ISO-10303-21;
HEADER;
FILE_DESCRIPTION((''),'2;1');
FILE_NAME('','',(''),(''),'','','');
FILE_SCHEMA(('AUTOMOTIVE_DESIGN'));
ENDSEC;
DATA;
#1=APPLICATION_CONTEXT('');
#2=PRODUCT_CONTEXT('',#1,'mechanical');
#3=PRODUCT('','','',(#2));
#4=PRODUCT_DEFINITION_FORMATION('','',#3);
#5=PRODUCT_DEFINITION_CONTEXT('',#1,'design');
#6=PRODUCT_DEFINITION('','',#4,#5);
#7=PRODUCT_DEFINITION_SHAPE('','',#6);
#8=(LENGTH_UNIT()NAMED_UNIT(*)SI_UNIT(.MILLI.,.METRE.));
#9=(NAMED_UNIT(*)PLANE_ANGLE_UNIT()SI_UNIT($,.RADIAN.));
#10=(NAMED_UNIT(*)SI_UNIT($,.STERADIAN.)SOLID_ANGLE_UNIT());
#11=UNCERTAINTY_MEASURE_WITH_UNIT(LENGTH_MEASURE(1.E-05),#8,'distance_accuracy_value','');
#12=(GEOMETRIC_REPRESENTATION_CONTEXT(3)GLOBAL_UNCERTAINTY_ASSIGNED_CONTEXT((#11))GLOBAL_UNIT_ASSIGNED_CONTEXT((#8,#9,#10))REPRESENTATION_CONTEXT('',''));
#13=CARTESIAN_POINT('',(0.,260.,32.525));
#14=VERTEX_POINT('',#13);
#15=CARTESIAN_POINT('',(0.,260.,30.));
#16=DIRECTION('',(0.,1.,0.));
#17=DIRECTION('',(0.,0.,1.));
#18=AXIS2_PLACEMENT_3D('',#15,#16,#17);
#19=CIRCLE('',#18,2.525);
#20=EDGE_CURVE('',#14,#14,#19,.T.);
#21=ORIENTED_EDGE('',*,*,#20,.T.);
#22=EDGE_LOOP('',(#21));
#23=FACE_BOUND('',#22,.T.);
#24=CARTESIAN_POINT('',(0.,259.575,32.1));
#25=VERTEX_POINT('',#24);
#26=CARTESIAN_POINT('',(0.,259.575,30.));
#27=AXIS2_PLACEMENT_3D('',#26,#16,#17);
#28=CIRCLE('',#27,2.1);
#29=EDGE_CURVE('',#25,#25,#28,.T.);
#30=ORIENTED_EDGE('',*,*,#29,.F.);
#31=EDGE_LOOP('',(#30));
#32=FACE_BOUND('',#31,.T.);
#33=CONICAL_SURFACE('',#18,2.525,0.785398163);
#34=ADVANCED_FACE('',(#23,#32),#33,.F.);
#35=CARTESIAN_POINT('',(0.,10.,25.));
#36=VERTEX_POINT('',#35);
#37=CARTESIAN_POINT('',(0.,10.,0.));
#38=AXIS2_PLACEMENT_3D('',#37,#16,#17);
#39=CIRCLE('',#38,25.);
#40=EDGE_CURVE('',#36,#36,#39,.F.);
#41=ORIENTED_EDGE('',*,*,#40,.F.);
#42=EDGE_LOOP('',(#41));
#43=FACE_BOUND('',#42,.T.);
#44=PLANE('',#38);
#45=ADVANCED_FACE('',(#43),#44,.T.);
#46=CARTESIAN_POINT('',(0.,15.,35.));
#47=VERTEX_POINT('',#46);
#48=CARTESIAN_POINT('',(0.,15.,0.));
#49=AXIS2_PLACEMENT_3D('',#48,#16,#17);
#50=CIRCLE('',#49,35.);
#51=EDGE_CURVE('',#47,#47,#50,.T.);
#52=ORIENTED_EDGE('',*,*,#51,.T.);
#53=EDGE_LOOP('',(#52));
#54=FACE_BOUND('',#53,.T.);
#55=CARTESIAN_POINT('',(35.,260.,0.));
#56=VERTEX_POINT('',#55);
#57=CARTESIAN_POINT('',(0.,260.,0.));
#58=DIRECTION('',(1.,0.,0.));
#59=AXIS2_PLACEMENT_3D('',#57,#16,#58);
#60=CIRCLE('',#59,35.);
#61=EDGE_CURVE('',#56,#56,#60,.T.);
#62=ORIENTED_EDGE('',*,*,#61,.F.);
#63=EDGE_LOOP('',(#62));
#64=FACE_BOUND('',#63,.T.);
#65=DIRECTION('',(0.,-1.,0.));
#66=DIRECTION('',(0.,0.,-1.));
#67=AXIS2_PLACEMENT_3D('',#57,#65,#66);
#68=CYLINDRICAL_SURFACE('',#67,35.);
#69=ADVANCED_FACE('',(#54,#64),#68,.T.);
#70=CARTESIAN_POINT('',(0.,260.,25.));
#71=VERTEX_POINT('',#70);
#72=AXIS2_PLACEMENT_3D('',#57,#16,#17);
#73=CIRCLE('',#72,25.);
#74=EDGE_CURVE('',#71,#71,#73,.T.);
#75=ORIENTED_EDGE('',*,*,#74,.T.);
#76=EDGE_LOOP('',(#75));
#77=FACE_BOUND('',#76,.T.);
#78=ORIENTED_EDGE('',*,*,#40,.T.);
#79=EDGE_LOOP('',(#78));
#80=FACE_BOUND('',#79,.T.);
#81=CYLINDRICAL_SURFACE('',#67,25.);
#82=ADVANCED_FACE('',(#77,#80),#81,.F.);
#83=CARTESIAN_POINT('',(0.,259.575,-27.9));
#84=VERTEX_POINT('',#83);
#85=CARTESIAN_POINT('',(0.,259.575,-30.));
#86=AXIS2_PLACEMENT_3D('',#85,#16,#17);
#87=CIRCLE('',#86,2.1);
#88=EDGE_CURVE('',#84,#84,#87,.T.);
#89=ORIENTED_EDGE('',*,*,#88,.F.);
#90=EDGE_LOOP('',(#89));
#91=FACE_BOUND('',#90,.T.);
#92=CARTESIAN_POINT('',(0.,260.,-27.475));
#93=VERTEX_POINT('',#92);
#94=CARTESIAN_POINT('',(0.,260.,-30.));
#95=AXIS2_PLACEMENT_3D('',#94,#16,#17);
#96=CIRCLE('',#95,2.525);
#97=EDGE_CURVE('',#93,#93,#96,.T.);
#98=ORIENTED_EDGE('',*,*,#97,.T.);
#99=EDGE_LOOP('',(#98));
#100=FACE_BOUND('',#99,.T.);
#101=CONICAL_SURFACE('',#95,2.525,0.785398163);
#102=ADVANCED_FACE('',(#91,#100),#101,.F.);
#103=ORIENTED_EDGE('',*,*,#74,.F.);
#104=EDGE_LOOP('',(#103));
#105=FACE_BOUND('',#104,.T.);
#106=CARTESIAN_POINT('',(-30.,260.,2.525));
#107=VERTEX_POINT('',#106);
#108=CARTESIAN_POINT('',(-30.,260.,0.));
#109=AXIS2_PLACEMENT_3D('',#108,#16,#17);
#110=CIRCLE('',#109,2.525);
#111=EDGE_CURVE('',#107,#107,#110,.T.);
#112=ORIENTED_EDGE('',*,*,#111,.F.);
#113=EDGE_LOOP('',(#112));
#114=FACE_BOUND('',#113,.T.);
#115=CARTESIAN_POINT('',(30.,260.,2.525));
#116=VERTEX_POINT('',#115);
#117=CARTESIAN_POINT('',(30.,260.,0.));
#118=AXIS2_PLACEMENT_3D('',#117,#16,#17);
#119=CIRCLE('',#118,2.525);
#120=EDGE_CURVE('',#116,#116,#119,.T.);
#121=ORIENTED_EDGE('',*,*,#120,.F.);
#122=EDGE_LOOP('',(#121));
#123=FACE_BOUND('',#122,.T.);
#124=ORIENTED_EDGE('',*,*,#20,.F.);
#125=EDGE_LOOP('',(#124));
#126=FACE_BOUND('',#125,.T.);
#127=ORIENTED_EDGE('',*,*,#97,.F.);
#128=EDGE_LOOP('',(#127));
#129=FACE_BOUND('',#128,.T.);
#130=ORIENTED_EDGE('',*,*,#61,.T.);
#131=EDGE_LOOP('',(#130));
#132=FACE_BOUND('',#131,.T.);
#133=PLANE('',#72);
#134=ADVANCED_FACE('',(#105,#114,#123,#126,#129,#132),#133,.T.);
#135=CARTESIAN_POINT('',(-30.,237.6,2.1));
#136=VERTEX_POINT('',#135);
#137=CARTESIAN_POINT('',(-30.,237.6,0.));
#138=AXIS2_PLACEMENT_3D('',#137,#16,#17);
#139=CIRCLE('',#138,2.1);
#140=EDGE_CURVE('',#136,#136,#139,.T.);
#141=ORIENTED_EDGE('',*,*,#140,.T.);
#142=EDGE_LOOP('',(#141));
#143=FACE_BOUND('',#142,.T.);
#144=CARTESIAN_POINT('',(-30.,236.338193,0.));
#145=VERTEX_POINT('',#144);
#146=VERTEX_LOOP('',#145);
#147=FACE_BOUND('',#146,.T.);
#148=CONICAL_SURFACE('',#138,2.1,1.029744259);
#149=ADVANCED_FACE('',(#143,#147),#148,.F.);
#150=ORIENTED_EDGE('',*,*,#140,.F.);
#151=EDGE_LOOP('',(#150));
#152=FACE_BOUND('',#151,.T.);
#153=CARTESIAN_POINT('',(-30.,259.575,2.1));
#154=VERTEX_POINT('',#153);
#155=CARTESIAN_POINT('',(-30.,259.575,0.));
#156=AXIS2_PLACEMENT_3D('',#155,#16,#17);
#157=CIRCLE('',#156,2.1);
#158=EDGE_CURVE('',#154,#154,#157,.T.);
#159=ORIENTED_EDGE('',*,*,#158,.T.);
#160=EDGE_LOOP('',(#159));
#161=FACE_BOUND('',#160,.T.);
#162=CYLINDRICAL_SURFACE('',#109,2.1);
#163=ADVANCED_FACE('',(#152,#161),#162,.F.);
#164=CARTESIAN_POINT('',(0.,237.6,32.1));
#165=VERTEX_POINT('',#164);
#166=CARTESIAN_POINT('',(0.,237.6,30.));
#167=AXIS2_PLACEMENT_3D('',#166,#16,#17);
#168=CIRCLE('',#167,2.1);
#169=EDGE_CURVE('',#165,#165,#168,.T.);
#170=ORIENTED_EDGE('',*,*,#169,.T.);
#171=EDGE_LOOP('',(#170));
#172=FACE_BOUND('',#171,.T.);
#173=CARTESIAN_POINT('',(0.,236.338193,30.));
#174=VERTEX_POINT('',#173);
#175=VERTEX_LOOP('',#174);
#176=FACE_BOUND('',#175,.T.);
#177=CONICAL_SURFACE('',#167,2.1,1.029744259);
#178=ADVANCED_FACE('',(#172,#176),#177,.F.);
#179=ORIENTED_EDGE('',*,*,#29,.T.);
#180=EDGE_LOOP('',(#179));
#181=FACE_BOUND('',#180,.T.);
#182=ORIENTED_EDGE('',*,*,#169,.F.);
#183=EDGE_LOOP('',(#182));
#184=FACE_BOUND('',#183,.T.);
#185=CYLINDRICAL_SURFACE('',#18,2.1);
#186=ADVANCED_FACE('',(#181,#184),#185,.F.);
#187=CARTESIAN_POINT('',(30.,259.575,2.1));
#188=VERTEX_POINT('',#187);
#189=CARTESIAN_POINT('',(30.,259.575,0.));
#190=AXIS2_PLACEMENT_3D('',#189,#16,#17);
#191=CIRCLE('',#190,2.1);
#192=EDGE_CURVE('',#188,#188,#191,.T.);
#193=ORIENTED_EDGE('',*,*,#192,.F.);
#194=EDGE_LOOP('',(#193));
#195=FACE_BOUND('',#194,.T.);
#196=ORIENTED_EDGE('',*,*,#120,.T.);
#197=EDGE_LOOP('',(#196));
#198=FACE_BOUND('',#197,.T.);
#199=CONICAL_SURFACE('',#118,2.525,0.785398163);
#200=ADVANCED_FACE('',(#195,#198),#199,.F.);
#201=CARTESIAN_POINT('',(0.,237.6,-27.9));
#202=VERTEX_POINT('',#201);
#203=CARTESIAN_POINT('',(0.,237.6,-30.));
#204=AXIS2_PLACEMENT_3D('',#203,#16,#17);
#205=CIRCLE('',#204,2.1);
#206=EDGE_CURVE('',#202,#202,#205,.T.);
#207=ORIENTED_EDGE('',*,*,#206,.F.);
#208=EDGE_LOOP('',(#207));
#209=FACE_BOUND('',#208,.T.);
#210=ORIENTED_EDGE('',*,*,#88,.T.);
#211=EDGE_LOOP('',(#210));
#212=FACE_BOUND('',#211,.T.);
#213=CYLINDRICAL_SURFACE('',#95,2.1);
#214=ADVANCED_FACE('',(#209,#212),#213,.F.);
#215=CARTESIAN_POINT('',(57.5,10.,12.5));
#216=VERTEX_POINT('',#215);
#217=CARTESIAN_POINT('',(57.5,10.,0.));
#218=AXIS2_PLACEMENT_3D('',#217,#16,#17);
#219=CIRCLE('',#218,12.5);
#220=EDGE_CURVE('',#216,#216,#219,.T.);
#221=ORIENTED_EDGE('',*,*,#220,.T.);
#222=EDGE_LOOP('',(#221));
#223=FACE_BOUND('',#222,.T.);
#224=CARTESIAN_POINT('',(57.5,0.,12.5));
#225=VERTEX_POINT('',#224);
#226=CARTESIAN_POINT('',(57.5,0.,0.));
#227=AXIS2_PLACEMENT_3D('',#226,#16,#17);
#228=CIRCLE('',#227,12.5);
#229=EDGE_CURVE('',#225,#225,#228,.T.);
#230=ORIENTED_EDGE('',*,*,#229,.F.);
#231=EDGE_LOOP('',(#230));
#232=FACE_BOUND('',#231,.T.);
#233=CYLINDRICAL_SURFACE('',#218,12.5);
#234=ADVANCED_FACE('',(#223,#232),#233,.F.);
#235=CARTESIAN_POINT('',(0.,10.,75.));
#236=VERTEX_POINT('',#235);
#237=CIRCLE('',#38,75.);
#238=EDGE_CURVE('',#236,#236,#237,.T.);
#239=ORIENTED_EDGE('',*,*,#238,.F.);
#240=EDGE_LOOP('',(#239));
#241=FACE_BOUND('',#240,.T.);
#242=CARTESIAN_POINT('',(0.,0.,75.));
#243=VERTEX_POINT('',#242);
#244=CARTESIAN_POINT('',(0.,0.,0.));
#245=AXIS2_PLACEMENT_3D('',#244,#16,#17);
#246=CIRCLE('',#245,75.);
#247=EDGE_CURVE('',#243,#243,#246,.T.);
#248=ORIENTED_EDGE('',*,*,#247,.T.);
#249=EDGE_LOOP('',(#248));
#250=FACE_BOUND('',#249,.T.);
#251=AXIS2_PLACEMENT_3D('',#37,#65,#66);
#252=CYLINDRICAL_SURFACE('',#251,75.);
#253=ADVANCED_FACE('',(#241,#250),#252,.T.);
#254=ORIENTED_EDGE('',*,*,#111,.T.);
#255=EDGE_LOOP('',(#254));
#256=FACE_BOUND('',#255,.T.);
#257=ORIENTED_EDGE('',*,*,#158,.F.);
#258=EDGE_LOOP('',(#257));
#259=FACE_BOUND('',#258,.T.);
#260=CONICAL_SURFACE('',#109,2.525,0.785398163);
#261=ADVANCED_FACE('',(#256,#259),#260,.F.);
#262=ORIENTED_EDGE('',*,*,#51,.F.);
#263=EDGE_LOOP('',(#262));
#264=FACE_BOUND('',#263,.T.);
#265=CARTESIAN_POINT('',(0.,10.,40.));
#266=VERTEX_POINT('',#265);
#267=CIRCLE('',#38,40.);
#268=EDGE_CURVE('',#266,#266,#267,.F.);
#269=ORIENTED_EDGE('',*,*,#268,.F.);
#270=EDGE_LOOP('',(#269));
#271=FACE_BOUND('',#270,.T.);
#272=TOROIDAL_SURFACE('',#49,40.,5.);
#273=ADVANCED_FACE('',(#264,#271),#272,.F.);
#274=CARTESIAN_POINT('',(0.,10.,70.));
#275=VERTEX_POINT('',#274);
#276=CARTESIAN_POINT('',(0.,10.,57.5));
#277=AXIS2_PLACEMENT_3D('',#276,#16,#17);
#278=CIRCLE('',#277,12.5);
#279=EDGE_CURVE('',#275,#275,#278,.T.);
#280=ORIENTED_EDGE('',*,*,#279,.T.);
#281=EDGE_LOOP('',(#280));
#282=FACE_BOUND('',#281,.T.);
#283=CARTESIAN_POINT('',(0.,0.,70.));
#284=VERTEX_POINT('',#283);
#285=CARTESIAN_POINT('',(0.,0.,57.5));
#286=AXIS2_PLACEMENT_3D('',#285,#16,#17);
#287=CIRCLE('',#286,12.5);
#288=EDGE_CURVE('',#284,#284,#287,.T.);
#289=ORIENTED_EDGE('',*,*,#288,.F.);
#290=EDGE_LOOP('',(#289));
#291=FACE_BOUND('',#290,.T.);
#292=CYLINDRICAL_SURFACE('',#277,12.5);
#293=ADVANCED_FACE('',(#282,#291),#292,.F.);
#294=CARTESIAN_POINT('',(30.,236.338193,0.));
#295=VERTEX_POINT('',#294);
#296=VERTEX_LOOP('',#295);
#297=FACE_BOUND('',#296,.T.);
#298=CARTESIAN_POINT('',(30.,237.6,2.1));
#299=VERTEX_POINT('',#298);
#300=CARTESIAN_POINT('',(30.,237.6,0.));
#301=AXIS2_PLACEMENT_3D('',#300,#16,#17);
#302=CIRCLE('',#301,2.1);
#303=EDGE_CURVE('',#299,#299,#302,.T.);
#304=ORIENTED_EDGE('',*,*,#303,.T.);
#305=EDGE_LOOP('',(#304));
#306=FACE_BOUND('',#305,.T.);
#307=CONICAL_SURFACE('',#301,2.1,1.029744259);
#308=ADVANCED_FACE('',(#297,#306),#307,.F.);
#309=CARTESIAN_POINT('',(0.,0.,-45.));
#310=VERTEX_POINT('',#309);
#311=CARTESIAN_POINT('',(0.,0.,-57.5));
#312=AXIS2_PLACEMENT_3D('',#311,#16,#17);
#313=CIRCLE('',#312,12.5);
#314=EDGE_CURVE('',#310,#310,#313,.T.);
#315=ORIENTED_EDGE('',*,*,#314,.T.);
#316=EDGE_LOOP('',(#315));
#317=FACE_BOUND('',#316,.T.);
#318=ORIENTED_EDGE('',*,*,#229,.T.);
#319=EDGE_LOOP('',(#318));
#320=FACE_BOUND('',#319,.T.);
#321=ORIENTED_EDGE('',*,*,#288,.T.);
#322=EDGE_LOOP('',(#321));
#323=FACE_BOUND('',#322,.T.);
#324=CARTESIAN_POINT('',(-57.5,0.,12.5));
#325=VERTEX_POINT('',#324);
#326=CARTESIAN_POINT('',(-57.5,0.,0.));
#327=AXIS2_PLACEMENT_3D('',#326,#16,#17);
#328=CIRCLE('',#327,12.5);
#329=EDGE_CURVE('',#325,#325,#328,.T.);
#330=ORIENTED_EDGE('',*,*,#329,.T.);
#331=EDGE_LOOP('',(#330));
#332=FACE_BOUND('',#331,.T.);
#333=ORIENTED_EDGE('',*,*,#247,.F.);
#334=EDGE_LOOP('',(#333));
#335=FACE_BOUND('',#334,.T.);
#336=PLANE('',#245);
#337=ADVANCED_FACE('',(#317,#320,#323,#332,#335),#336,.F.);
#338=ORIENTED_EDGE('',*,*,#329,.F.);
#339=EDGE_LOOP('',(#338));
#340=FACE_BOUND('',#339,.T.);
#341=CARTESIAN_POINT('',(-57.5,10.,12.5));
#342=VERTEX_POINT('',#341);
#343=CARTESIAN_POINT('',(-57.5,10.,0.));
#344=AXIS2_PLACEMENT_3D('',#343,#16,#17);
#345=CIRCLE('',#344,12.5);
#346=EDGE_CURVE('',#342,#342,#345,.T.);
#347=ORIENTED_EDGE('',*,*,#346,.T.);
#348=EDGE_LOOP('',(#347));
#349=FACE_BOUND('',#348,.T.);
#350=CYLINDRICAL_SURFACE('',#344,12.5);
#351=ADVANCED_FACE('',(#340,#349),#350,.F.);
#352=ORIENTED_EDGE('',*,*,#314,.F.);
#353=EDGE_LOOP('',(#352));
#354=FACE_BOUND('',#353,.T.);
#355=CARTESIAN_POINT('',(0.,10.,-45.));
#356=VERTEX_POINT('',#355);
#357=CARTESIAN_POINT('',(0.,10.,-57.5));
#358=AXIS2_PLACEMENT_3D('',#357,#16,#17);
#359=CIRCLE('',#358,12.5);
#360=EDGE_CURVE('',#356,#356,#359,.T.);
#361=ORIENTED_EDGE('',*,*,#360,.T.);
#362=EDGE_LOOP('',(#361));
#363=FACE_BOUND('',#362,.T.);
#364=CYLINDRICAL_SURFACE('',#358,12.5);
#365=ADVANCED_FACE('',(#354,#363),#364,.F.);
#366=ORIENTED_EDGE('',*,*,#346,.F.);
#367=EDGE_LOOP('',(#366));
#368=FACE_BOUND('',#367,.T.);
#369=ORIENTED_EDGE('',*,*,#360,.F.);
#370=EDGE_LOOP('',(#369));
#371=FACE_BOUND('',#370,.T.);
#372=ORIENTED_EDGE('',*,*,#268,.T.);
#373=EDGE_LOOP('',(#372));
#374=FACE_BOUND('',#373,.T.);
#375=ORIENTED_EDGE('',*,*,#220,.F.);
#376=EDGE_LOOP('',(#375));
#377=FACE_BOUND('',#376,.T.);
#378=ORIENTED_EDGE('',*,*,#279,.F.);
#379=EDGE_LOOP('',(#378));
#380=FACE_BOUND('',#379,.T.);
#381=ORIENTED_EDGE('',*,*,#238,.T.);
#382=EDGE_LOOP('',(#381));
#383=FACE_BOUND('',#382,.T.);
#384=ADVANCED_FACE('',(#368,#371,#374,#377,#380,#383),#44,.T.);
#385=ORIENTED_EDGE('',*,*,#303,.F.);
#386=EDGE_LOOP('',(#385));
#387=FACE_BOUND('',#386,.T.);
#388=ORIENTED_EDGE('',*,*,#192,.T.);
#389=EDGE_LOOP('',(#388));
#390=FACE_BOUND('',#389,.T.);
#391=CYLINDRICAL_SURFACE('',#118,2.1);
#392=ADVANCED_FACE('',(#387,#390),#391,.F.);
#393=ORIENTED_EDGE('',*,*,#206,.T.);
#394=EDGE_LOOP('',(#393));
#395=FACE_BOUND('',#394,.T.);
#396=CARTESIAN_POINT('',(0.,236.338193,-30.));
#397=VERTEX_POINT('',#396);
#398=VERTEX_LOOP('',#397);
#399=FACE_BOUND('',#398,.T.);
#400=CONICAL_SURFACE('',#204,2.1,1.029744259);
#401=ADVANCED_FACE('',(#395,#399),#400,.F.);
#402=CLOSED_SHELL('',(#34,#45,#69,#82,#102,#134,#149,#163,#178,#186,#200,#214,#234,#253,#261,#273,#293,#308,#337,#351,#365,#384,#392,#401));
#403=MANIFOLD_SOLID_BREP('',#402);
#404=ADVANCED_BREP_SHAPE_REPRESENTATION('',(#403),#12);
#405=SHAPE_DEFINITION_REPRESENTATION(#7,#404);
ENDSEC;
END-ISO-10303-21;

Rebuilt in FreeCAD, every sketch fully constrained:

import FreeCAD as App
import Part
import Sketcher


def edges_at(feature, points):
    """Names of the edges that pass closest to the given points."""
    edges = feature.Shape.Edges
    near = lambda p: min(range(len(edges)), key=lambda i: edges[i].distToShape(Part.Vertex(*p))[0])
    return sorted({f"Edge{near(p) + 1}" for p in points})

doc = App.newDocument("Part")
body = doc.addObject("PartDesign::Body", "Body")

sketch1 = body.newObject("Sketcher::SketchObject", "Sketch")
sketch1.AttachmentSupport = (doc.getObject("XZ_Plane"), [""])
sketch1.MapMode = "FlatFace"
sketch1.addGeometry(Part.Circle(App.Vector(0, 0, 0), App.Vector(0, 0, 1), 75), False)
sketch1.addConstraint([
    Sketcher.Constraint("Coincident", 0, 3, -1, 1),
    Sketcher.Constraint("Diameter", 0, 150.0),
])
pad1 = body.newObject("PartDesign::Pad", "Pad")
pad1.Profile = sketch1
pad1.Length = 10
pad1.Reversed = True

sketch2 = body.newObject("Sketcher::SketchObject", "Sketch001")
sketch2.AttachmentSupport = (doc.getObject("XZ_Plane"), [""])
sketch2.MapMode = "FlatFace"
sketch2.AttachmentOffset = App.Placement(App.Vector(0, 0, -10), App.Rotation())
sketch2.addGeometry([
    Part.Circle(App.Vector(0, 0, 0), App.Vector(0, 0, 1), 35),
    Part.Circle(App.Vector(0, 0, 0), App.Vector(0, 0, 1), 25),
], False)
sketch2.addConstraint([
    Sketcher.Constraint("Coincident", 0, 3, -1, 1),
    Sketcher.Constraint("Coincident", 1, 3, -1, 1),
    Sketcher.Constraint("Diameter", 0, 70.0),
    Sketcher.Constraint("Diameter", 1, 50.0),
])
pad2 = body.newObject("PartDesign::Pad", "Pad001")
pad2.Profile = sketch2
pad2.Length = 250
pad2.Reversed = True

sketch3 = body.newObject("Sketcher::SketchObject", "Sketch002")
sketch3.AttachmentSupport = (doc.getObject("XZ_Plane"), [""])
sketch3.MapMode = "FlatFace"
sketch3.AttachmentOffset = App.Placement(App.Vector(0, 0, -10), App.Rotation())
sketch3.addGeometry([
    Part.Circle(App.Vector(0, -57.5, 0), App.Vector(0, 0, 1), 12.5),
    Part.Circle(App.Vector(57.5, 0, 0), App.Vector(0, 0, 1), 12.5),
    Part.Circle(App.Vector(0, 57.5, 0), App.Vector(0, 0, 1), 12.5),
    Part.Circle(App.Vector(-57.5, 0, 0), App.Vector(0, 0, 1), 12.5),
], False)
sketch3.addConstraint([
    Sketcher.Constraint("Equal", 0, 1),
    Sketcher.Constraint("Equal", 1, 2),
    Sketcher.Constraint("Equal", 2, 3),
    Sketcher.Constraint("Symmetric", 0, 3, 2, 3, -1, 1),
    Sketcher.Constraint("Symmetric", 1, 3, 3, 3, -1, 1),
    Sketcher.Constraint("PointOnObject", 0, 3, -2),
    Sketcher.Constraint("PointOnObject", 1, 3, -1),
    Sketcher.Constraint("Diameter", 0, 25.0),
    Sketcher.Constraint("DistanceY", 0, 3, 2, 3, 115.0),
    Sketcher.Constraint("DistanceX", 3, 3, 1, 3, 115.0),
])
doc.recompute()
hole = body.newObject("PartDesign::Hole", "Hole")
hole.Profile = sketch3
hole.ThreadType = "None"
hole.Diameter = 25
hole.DepthType = "ThroughAll"
hole.Reversed = True

sketch4 = body.newObject("Sketcher::SketchObject", "Sketch003")
sketch4.AttachmentSupport = (doc.getObject("XZ_Plane"), [""])
sketch4.MapMode = "FlatFace"
sketch4.AttachmentOffset = App.Placement(App.Vector(0, 0, -260), App.Rotation())
sketch4.addGeometry([
    Part.Circle(App.Vector(0, 30, 0), App.Vector(0, 0, 1), 2.1),
    Part.Circle(App.Vector(-30, 0, 0), App.Vector(0, 0, 1), 2.1),
    Part.Circle(App.Vector(0, -30, 0), App.Vector(0, 0, 1), 2.1),
    Part.Circle(App.Vector(30, 0, 0), App.Vector(0, 0, 1), 2.1),
], False)
sketch4.addConstraint([
    Sketcher.Constraint("Equal", 0, 1),
    Sketcher.Constraint("Equal", 1, 2),
    Sketcher.Constraint("Equal", 2, 3),
    Sketcher.Constraint("Symmetric", 0, 3, 2, 3, -1, 1),
    Sketcher.Constraint("Symmetric", 1, 3, 3, 3, -1, 1),
    Sketcher.Constraint("PointOnObject", 0, 3, -2),
    Sketcher.Constraint("PointOnObject", 1, 3, -1),
    Sketcher.Constraint("Diameter", 0, 4.2),
    Sketcher.Constraint("DistanceY", -1, 1, 0, 3, 30.0),
    Sketcher.Constraint("DistanceX", 1, 3, -1, 1, 30.0),
])
doc.recompute()
hole2 = body.newObject("PartDesign::Hole", "Hole001")
hole2.Profile = sketch4
hole2.ThreadType = "None"
hole2.Diameter = 4.2
hole2.DepthType = "Dimension"
hole2.Depth = 22.4
hole2.DrillPoint = "Angled"
hole2.DrillPointAngle = 118
hole2.HoleCutType = "Countersink"
hole2.HoleCutDiameter = 5.05
hole2.HoleCutCountersinkAngle = 90
hole2.Reversed = True
doc.recompute()

fillet = body.newObject("PartDesign::Fillet", "Fillet")
fillet.Base = (hole2, edges_at(hole2, [(-35, 10, 0)]))
fillet.Radius = 5

doc.recompute()
